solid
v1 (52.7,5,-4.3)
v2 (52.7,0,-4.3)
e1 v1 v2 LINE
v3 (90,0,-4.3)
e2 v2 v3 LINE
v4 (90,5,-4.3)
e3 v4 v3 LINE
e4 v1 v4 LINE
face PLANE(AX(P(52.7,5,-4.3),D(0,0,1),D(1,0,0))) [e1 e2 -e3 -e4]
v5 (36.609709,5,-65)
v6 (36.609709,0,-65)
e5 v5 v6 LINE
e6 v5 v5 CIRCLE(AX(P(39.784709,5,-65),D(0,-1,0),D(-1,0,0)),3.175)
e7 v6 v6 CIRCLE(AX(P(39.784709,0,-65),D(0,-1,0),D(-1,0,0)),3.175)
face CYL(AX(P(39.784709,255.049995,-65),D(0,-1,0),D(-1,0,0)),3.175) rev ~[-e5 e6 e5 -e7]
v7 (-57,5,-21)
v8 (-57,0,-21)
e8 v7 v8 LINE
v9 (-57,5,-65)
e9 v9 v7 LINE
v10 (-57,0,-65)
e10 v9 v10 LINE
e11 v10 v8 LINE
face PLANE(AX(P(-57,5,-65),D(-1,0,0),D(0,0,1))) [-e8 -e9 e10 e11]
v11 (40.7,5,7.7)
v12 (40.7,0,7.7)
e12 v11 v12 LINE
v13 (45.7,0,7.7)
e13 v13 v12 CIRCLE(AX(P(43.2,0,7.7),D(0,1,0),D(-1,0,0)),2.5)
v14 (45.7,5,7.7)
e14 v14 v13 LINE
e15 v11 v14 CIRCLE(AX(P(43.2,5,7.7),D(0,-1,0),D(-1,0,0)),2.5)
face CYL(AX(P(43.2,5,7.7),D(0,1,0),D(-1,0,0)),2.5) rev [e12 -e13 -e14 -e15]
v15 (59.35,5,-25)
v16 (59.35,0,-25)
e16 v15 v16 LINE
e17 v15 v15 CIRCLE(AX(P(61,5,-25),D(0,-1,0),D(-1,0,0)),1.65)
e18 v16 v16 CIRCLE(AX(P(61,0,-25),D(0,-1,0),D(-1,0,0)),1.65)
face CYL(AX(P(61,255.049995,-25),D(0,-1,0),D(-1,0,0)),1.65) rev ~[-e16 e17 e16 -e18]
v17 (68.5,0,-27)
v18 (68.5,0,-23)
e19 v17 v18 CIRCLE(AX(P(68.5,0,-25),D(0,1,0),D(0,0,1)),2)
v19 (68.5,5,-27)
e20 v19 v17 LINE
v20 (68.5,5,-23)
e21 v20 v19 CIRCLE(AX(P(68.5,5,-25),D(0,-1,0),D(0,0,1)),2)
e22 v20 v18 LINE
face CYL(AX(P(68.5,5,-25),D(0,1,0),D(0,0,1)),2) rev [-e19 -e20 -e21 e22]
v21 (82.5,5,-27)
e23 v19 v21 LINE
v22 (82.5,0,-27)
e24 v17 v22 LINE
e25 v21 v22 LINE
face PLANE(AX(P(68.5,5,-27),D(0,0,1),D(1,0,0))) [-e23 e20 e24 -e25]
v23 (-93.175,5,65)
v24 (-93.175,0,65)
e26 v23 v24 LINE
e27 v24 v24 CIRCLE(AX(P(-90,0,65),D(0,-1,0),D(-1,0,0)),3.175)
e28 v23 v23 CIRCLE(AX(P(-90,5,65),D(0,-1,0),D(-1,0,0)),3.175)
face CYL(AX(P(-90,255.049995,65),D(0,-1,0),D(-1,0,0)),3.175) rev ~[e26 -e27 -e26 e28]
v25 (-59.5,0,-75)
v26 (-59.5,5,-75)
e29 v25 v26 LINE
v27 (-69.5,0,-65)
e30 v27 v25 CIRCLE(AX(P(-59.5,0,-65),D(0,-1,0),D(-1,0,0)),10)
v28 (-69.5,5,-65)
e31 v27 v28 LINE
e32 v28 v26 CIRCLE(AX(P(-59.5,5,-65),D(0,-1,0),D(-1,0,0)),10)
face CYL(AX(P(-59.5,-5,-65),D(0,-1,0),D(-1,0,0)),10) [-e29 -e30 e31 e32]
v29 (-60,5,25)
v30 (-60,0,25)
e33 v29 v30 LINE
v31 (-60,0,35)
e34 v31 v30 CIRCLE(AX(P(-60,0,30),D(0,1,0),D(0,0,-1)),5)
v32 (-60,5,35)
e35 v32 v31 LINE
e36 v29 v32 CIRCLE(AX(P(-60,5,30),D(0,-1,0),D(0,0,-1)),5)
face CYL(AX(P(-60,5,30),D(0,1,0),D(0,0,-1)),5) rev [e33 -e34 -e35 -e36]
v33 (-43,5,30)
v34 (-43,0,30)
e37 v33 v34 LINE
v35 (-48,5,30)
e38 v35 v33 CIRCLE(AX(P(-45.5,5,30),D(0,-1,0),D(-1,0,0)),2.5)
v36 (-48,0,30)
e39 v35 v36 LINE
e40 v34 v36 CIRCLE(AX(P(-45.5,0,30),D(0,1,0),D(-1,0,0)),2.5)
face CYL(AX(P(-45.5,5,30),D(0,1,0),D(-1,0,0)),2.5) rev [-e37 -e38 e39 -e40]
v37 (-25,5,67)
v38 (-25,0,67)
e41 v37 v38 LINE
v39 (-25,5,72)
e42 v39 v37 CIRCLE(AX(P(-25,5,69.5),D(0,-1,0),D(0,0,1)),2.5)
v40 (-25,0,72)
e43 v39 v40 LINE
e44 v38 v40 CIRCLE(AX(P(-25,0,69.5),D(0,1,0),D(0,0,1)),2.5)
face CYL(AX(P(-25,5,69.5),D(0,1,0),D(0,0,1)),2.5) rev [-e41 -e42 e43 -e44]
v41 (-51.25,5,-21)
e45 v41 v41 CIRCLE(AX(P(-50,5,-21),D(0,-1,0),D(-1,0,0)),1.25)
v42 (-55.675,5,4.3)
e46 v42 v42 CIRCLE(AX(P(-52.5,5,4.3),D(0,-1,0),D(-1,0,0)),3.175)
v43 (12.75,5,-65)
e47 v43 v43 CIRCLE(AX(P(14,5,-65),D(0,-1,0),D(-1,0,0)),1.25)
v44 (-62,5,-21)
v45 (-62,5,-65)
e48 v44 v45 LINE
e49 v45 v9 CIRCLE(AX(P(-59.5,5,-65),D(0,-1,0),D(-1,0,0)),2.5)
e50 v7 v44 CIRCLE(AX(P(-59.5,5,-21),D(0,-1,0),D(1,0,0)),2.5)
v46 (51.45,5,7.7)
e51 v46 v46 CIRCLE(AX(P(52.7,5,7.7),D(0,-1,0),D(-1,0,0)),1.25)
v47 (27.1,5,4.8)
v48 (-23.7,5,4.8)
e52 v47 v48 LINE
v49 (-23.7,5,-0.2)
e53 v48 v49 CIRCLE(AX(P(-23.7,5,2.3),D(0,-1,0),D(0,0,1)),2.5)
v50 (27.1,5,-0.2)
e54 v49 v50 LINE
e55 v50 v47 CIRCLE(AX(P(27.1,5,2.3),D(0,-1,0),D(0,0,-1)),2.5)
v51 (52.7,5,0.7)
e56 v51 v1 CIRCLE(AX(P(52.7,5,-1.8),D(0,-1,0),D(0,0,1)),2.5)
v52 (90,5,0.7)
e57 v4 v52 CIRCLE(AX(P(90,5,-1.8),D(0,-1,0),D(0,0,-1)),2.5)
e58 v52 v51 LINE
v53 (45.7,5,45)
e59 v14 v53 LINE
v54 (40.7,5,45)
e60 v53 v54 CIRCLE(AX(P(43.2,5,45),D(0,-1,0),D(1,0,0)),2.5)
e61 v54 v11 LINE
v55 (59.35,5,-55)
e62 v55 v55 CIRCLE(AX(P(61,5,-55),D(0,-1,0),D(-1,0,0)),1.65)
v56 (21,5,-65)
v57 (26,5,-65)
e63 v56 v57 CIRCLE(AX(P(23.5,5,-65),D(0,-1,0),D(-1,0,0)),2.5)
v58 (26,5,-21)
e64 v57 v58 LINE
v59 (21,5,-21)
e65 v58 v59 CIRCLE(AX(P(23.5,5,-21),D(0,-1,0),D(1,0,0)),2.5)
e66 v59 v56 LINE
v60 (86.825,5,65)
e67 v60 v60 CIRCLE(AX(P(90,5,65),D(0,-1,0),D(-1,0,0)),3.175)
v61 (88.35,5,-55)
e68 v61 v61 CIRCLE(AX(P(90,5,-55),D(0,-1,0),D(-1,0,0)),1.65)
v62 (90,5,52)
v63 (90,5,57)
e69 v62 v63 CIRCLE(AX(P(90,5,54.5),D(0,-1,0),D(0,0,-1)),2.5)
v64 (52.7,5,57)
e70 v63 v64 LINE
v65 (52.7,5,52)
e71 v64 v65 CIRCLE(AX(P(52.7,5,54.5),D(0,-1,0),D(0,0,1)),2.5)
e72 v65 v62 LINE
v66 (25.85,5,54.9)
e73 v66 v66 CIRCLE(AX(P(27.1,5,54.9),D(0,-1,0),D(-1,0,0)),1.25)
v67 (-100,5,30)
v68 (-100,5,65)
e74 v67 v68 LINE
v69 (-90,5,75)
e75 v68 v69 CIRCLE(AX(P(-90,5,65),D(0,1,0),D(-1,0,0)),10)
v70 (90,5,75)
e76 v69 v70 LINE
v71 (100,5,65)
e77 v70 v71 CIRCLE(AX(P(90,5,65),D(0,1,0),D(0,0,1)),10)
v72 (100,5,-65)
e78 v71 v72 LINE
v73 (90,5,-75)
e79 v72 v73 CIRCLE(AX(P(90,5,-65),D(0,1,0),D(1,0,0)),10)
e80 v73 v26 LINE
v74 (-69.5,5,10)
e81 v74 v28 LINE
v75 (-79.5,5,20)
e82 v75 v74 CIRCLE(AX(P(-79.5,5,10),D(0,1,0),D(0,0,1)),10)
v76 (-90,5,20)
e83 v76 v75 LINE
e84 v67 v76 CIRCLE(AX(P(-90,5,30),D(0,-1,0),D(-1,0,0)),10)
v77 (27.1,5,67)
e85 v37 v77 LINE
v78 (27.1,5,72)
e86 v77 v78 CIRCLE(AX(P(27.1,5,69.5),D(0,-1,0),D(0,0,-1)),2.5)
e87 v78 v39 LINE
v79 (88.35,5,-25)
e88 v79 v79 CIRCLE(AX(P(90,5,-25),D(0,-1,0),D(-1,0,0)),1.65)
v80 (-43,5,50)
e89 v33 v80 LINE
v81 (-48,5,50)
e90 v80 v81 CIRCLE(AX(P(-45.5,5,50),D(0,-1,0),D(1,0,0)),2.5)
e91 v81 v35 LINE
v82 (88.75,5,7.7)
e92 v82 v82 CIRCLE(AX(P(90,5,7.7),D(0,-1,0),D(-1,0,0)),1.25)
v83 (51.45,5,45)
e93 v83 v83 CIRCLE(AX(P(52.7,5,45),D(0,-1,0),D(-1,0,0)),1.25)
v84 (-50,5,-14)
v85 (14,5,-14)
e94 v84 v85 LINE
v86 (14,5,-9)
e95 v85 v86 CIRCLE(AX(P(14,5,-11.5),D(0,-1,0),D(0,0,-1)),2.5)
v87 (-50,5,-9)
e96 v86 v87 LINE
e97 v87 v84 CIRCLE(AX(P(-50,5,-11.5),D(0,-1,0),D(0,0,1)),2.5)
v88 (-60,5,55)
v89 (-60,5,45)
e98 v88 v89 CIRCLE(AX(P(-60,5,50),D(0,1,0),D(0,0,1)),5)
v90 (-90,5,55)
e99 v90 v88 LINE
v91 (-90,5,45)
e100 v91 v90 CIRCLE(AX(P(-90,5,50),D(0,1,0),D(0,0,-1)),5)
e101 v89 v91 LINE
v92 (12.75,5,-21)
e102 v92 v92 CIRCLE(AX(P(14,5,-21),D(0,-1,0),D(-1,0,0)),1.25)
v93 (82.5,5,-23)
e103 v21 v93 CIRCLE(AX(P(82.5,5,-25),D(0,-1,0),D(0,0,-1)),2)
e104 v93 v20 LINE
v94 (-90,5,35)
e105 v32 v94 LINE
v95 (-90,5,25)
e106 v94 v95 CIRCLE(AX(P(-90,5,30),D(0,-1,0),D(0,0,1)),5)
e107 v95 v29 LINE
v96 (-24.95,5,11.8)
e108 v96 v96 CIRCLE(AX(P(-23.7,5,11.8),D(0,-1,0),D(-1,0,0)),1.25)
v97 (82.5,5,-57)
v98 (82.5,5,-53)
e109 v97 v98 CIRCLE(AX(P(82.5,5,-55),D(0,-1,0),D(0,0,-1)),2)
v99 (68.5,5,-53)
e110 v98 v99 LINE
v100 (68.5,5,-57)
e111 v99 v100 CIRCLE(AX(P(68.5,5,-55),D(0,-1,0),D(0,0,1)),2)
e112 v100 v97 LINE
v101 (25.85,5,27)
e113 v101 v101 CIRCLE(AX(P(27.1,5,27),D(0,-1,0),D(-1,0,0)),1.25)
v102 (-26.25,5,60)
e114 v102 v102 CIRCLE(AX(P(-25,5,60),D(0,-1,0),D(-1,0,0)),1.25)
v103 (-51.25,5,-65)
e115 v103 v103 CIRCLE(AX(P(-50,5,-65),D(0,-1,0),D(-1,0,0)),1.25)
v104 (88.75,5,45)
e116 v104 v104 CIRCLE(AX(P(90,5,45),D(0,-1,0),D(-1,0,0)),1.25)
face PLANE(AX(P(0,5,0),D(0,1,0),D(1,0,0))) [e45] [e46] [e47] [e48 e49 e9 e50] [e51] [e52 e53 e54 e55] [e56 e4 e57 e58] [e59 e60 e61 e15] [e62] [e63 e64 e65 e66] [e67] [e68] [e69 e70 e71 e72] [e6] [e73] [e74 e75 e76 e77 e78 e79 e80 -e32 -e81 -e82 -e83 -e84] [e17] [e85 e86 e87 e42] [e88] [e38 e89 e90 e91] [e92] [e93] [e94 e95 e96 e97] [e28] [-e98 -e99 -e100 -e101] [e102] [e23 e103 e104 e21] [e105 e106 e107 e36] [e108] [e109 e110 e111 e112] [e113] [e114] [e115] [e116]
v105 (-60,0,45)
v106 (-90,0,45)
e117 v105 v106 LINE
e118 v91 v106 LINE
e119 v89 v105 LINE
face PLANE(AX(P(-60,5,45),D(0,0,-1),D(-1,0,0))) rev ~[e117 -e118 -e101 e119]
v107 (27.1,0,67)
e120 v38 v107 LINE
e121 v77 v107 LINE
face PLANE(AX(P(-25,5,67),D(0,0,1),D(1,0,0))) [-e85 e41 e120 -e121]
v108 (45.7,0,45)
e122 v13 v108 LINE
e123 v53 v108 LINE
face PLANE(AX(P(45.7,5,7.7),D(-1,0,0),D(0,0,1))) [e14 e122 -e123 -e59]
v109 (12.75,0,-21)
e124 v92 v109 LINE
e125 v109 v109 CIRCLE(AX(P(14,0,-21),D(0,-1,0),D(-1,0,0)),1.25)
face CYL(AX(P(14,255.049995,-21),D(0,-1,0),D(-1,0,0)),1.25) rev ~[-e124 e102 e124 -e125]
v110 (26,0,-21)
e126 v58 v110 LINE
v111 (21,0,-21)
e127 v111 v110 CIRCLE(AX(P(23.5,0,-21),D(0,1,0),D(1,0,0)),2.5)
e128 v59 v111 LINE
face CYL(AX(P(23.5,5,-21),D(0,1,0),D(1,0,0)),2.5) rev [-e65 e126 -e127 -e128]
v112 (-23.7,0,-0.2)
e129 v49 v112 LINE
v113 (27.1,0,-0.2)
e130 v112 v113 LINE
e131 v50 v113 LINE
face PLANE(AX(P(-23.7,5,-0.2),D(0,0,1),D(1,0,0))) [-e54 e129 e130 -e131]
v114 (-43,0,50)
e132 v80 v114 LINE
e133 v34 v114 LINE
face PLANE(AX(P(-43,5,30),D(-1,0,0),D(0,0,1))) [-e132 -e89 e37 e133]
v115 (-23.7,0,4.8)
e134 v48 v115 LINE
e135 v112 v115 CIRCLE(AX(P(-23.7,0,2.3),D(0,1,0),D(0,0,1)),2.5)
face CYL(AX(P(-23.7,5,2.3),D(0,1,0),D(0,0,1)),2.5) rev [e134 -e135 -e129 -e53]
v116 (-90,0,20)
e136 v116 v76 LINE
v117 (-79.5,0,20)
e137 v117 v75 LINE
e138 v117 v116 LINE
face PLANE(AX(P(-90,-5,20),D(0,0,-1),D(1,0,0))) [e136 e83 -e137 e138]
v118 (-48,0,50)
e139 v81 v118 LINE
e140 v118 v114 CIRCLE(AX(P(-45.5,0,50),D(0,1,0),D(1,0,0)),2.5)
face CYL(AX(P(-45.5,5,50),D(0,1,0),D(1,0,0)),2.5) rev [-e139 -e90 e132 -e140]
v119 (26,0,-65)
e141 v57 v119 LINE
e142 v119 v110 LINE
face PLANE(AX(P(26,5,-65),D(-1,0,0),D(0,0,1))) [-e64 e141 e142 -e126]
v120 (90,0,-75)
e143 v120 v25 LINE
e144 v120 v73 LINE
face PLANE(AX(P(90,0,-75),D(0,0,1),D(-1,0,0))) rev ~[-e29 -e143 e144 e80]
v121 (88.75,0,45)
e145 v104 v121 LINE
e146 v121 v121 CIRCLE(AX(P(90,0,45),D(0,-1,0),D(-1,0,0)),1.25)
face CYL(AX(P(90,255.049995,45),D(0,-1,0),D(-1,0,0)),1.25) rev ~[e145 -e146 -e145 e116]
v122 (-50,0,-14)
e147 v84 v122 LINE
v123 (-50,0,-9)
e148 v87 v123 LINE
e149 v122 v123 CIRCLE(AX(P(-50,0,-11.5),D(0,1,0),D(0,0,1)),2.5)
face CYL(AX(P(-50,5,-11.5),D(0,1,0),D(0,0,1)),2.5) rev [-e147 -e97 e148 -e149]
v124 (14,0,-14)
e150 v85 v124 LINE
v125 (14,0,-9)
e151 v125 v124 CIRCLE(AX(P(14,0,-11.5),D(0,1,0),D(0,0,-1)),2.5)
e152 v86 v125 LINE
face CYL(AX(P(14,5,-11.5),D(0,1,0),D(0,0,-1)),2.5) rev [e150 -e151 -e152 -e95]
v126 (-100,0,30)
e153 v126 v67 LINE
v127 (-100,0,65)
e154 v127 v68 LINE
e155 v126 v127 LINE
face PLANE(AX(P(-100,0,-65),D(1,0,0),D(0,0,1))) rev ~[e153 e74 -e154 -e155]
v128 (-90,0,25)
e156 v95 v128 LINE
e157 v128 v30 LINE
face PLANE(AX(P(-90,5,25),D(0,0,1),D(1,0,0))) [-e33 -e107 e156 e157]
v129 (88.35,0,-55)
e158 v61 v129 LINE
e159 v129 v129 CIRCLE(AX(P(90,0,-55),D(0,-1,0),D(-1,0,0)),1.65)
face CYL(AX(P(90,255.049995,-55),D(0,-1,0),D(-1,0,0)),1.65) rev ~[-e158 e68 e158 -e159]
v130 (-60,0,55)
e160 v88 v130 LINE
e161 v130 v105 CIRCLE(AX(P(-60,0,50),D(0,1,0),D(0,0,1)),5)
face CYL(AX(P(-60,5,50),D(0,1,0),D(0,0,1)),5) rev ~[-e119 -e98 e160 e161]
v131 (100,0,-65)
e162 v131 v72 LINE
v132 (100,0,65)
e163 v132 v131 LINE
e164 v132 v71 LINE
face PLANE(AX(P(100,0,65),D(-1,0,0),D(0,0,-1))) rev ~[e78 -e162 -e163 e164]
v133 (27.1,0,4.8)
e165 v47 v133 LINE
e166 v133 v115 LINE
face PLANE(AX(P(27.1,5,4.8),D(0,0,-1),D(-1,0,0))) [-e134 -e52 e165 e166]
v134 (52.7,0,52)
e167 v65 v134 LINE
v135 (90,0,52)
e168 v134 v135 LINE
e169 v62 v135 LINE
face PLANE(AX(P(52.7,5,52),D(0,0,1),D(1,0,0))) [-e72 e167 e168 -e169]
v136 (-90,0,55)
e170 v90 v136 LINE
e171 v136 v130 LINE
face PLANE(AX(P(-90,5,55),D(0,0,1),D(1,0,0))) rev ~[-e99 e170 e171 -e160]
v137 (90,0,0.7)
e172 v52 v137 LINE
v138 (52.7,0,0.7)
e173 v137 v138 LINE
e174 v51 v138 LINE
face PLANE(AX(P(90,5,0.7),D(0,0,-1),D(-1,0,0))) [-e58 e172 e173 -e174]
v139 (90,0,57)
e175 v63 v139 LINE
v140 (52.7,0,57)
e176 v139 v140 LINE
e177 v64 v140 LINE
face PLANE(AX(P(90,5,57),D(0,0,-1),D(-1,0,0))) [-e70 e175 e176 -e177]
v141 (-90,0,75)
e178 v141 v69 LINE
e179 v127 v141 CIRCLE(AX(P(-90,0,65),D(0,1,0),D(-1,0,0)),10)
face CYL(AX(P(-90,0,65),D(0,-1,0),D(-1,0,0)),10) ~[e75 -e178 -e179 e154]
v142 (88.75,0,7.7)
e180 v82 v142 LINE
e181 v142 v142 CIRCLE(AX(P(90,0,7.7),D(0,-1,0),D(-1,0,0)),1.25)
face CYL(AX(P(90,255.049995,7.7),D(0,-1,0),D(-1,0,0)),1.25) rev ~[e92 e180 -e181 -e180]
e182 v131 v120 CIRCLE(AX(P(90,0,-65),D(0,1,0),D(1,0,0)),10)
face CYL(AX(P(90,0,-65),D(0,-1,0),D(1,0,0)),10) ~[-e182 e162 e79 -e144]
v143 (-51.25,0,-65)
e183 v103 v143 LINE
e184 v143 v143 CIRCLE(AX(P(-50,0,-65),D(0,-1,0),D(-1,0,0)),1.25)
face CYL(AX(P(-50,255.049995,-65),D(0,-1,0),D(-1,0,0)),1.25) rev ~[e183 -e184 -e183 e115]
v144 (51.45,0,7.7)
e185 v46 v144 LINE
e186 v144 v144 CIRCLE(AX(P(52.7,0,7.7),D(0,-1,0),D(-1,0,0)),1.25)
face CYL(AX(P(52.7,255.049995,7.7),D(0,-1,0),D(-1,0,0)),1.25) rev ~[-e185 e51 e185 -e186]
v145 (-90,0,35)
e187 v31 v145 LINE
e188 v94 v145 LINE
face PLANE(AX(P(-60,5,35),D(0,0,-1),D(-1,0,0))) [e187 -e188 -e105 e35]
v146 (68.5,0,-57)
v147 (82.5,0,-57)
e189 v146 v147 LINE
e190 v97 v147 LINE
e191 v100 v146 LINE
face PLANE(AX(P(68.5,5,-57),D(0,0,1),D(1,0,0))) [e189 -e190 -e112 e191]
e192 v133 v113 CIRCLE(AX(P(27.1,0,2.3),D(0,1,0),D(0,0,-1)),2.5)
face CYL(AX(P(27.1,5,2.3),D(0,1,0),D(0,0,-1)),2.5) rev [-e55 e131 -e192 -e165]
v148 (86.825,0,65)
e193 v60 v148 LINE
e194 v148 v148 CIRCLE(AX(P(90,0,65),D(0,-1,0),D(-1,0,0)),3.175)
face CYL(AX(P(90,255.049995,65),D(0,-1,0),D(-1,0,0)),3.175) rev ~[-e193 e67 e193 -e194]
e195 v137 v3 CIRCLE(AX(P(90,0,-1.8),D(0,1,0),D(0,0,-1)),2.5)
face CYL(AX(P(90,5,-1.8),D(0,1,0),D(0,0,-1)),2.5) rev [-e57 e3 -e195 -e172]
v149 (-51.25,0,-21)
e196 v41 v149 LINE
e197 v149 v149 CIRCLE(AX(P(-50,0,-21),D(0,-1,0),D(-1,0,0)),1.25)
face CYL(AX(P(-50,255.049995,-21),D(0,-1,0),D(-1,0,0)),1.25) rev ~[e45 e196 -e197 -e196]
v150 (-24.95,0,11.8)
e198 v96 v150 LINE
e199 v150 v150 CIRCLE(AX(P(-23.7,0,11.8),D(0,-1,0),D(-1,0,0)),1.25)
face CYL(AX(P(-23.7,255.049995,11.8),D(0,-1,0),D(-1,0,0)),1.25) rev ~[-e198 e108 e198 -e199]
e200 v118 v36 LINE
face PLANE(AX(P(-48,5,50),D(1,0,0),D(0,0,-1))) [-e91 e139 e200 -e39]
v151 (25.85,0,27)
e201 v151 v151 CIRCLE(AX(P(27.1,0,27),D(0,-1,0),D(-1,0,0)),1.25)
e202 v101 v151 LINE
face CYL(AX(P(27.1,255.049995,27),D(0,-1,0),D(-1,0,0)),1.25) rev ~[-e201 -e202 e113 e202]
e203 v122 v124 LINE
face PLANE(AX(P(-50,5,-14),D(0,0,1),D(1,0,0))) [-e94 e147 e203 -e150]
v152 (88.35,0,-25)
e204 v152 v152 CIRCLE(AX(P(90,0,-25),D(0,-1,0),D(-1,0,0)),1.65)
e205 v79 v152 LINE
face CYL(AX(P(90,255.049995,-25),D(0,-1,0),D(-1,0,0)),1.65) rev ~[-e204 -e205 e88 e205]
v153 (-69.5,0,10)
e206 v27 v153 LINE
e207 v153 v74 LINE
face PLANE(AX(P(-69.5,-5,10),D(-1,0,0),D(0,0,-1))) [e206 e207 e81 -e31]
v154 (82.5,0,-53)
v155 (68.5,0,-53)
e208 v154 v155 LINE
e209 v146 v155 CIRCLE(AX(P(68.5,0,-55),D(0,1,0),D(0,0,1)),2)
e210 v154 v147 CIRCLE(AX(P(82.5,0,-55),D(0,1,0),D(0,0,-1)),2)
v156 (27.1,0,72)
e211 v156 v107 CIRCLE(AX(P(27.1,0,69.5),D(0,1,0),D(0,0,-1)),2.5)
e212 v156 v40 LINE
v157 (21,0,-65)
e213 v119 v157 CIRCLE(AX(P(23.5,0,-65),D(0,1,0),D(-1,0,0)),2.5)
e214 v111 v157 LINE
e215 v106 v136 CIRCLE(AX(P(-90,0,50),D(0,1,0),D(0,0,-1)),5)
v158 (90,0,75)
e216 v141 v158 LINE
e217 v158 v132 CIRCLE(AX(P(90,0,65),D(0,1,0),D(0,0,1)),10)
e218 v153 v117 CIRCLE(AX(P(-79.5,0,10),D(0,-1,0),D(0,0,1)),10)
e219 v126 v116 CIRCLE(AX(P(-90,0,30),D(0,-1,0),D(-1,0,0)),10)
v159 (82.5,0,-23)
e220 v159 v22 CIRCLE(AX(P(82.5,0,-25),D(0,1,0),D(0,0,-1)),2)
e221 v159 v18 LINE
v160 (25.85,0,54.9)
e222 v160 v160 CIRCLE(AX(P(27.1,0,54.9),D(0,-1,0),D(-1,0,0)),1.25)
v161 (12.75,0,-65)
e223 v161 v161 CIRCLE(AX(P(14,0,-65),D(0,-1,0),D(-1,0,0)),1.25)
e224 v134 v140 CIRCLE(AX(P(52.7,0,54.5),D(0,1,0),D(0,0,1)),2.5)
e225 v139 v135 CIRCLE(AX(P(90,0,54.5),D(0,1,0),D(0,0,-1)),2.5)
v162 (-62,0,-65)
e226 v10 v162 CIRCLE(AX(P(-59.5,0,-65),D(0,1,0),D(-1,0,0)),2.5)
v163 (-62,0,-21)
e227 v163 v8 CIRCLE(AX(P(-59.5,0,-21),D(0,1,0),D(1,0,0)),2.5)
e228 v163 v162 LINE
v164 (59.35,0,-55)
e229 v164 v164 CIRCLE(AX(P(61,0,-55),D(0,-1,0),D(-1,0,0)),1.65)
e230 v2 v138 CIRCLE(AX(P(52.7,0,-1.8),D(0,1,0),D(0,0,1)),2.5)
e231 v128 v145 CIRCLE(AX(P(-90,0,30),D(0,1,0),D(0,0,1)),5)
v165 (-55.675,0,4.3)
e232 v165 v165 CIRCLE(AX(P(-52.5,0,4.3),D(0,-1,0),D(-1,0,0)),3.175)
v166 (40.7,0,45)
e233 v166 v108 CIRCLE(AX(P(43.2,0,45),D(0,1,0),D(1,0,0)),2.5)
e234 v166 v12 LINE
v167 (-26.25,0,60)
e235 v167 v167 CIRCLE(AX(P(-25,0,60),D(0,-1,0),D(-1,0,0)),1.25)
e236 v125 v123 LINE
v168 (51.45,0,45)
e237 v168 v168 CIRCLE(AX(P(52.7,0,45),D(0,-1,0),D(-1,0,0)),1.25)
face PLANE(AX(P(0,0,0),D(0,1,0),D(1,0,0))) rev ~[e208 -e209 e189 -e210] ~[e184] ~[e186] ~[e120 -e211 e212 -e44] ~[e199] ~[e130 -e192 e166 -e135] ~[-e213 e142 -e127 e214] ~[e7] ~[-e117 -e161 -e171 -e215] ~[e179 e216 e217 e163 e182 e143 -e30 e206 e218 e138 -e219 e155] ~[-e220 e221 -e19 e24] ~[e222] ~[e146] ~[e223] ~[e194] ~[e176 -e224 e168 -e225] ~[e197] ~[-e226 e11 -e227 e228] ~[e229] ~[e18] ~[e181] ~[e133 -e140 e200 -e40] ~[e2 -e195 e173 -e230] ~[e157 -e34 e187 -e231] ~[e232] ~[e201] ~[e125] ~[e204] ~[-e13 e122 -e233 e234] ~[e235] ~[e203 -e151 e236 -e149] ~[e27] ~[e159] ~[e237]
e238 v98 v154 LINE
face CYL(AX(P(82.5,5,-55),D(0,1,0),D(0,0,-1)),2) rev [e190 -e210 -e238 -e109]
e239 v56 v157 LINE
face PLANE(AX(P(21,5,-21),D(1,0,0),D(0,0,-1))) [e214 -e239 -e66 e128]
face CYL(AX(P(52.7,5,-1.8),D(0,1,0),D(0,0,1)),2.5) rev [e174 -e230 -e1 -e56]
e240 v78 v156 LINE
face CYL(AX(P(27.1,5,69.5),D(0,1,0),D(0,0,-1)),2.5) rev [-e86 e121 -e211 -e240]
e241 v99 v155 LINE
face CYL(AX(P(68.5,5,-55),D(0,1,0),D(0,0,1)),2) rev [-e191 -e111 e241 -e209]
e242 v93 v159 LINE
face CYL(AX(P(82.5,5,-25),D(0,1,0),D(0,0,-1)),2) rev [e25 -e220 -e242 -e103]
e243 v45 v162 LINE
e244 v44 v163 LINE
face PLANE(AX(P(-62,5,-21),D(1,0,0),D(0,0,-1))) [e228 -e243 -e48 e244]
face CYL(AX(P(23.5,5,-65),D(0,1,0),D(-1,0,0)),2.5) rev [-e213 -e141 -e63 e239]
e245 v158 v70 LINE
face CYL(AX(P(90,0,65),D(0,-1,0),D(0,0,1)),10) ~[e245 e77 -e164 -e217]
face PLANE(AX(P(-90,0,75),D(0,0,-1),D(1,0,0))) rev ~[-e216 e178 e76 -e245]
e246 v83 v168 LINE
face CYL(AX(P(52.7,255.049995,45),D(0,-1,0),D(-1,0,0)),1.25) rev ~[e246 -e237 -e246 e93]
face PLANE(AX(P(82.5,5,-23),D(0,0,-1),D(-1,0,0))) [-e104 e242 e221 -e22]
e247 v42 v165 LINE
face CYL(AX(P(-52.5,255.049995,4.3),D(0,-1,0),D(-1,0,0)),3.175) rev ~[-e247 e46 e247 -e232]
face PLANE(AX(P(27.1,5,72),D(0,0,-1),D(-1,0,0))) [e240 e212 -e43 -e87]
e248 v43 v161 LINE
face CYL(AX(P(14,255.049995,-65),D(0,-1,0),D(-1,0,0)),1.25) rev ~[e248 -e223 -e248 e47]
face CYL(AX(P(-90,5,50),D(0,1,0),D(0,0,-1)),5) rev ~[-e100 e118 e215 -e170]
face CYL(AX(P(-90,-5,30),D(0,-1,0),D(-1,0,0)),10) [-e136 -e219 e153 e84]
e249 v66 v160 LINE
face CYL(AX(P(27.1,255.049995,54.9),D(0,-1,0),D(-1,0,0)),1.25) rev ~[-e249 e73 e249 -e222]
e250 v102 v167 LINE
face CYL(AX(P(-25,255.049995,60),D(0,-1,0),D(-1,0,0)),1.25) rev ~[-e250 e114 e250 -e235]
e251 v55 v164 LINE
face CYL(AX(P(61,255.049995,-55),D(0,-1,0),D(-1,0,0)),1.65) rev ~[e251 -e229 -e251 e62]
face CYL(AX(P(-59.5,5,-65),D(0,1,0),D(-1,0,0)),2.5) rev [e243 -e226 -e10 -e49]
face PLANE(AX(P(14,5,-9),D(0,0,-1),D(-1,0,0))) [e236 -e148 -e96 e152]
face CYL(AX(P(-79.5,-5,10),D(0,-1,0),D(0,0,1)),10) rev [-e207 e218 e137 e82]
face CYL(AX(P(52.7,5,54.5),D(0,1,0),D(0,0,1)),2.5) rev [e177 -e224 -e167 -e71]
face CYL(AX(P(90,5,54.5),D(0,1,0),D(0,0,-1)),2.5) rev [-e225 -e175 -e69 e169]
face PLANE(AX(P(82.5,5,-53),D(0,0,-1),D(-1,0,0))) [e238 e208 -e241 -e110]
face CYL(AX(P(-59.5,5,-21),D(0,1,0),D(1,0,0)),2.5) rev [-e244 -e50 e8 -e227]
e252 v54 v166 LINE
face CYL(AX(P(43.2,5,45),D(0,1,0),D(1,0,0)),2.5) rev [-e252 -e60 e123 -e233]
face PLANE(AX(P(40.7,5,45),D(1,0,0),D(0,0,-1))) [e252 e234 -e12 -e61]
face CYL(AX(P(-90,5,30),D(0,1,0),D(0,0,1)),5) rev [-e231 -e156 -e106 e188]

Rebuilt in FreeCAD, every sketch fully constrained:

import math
import FreeCAD as App
import Part
import Sketcher

V = App.Vector

doc = App.newDocument("Part")
body = doc.addObject("PartDesign::Body", "Body")

sketch1 = body.newObject("Sketcher::SketchObject", "Sketch")
sketch1.AttachmentSupport = (doc.getObject("XZ_Plane"), [""])
sketch1.MapMode = "FlatFace"
sketch1.addGeometry([
    Part.LineSegment(V(-90, 75, 0), V(90, 75, 0)),
    Part.ArcOfCircle(Part.Circle(V(90, 65, 0), V(0, 0, 1), 10), math.radians(0), math.radians(90)),
    Part.LineSegment(V(100, 65, 0), V(100, -65, 0)),
    Part.ArcOfCircle(Part.Circle(V(90, -65, 0), V(0, 0, 1), 10), math.radians(-90), math.radians(0)),
    Part.LineSegment(V(90, -75, 0), V(-90, -75, 0)),
    Part.ArcOfCircle(Part.Circle(V(-90, -65, 0), V(0, 0, 1), 10), math.radians(180), math.radians(270)),
    Part.LineSegment(V(-100, -65, 0), V(-100, 65, 0)),
    Part.ArcOfCircle(Part.Circle(V(-90, 65, 0), V(0, 0, 1), 10), math.radians(90), math.radians(180)),
], False)
sketch1.addConstraint([
    Sketcher.Constraint("Tangent", 0, 2, 1, 2),
    Sketcher.Constraint("Tangent", 1, 1, 2, 1),
    Sketcher.Constraint("Tangent", 2, 2, 3, 2),
    Sketcher.Constraint("Tangent", 3, 1, 4, 1),
    Sketcher.Constraint("Tangent", 4, 2, 5, 2),
    Sketcher.Constraint("Tangent", 5, 1, 6, 1),
    Sketcher.Constraint("Tangent", 6, 2, 7, 2),
    Sketcher.Constraint("Tangent", 7, 1, 0, 1),
    Sketcher.Constraint("Horizontal", 0),
    Sketcher.Constraint("Vertical", 2),
    Sketcher.Constraint("Horizontal", 4),
    Sketcher.Constraint("Vertical", 6),
    Sketcher.Constraint("Equal", 1, 3),
    Sketcher.Constraint("Equal", 3, 5),
    Sketcher.Constraint("Equal", 5, 7),
    Sketcher.Constraint("Symmetric", 1, 3, 5, 3, -1, 1),
    Sketcher.Constraint("Radius", 1, 10.0),
    Sketcher.Constraint("DistanceX", 0, 1, 0, 2, 180.0),
    Sketcher.Constraint("DistanceY", 2, 2, 2, 1, 130.0),
])
pad1 = body.newObject("PartDesign::Pad", "Pad")
pad1.Profile = sketch1
pad1.Length = 5
pad1.Reversed = True

sketch2 = body.newObject("Sketcher::SketchObject", "Sketch001")
sketch2.AttachmentSupport = (doc.getObject("XZ_Plane"), [""])
sketch2.MapMode = "FlatFace"
sketch2.AttachmentOffset = App.Placement(V(0, 0, -5), App.Rotation())
sketch2.addGeometry([
    Part.Circle(V(27.1, 27, 0), V(0, 0, 1), 1.2),
    Part.Circle(V(27.1, 54.9, 0), V(0, 0, 1), 1.2),
    Part.Circle(V(-23.7, 11.8, 0), V(0, 0, 1), 1.2),
    Part.Circle(V(-25, 60, 0), V(0, 0, 1), 1.2),
], False)
sketch2.addConstraint([
    Sketcher.Constraint("Equal", 0, 1),
    Sketcher.Constraint("Equal", 1, 2),
    Sketcher.Constraint("Equal", 2, 3),
    Sketcher.Constraint("Vertical", 0, 3, 1, 3),
    Sketcher.Constraint("Diameter", 0, 2.5),
    Sketcher.Constraint("DistanceY", -1, 1, 0, 3, 27.0),
    Sketcher.Constraint("DistanceX", 3, 3, -1, 1, 25.0),
    Sketcher.Constraint("DistanceY", -1, 1, 3, 3, 60.0),
    Sketcher.Constraint("DistanceX", -1, 1, 0, 3, 27.1),
    Sketcher.Constraint("DistanceY", -1, 1, 1, 3, 54.9),
    Sketcher.Constraint("DistanceX", 2, 3, -1, 1, 23.7),
    Sketcher.Constraint("DistanceY", -1, 1, 2, 3, 11.8),
])
doc.recompute()
hole = body.newObject("PartDesign::Hole", "Hole")
hole.Profile = sketch2
hole.ThreadType = "None"
hole.Diameter = 2.5
hole.DepthType = "ThroughAll"
hole.Reversed = True

sketch3 = body.newObject("Sketcher::SketchObject", "Sketch002")
sketch3.AttachmentSupport = (doc.getObject("XZ_Plane"), [""])
sketch3.MapMode = "FlatFace"
sketch3.AttachmentOffset = App.Placement(V(0, 0, -5), App.Rotation())
sketch3.addGeometry([
    Part.Circle(V(52.7, 45, 0), V(0, 0, 1), 1.2),
    Part.Circle(V(90, 45, 0), V(0, 0, 1), 1.2),
    Part.Circle(V(90, 7.7, 0), V(0, 0, 1), 1.2),
    Part.Circle(V(52.7, 7.7, 0), V(0, 0, 1), 1.2),
], False)
sketch3.addConstraint([
    Sketcher.Constraint("Equal", 0, 1),
    Sketcher.Constraint("Equal", 1, 2),
    Sketcher.Constraint("Equal", 2, 3),
    Sketcher.Constraint("Horizontal", 0, 3, 1, 3),
    Sketcher.Constraint("Horizontal", 2, 3, 3, 3),
    Sketcher.Constraint("Vertical", 1, 3, 2, 3),
    Sketcher.Constraint("Vertical", 0, 3, 3, 3),
    Sketcher.Constraint("Diameter", 0, 2.5),
    Sketcher.Constraint("DistanceY", -1, 1, 0, 3, 45.0),
    Sketcher.Constraint("DistanceX", -1, 1, 1, 3, 90.0),
    Sketcher.Constraint("DistanceX", -1, 1, 0, 3, 52.7),
    Sketcher.Constraint("DistanceY", -1, 1, 2, 3, 7.7),
])
doc.recompute()
hole2 = body.newObject("PartDesign::Hole", "Hole001")
hole2.Profile = sketch3
hole2.ThreadType = "None"
hole2.Diameter = 2.5
hole2.DepthType = "ThroughAll"
hole2.Reversed = True

sketch4 = body.newObject("Sketcher::SketchObject", "Sketch003")
sketch4.AttachmentSupport = (doc.getObject("XZ_Plane"), [""])
sketch4.MapMode = "FlatFace"
sketch4.AttachmentOffset = App.Placement(V(0, 0, -5), App.Rotation())
sketch4.addGeometry([
    Part.Circle(V(-50, -21, 0), V(0, 0, 1), 1.2),
    Part.Circle(V(14, -21, 0), V(0, 0, 1), 1.2),
    Part.Circle(V(14, -65, 0), V(0, 0, 1), 1.2),
    Part.Circle(V(-50, -65, 0), V(0, 0, 1), 1.2),
], False)
sketch4.addConstraint([
    Sketcher.Constraint("Equal", 0, 1),
    Sketcher.Constraint("Equal", 1, 2),
    Sketcher.Constraint("Equal", 2, 3),
    Sketcher.Constraint("Horizontal", 0, 3, 1, 3),
    Sketcher.Constraint("Horizontal", 2, 3, 3, 3),
    Sketcher.Constraint("Vertical", 1, 3, 2, 3),
    Sketcher.Constraint("Vertical", 0, 3, 3, 3),
    Sketcher.Constraint("Diameter", 0, 2.5),
    Sketcher.Constraint("DistanceX", 0, 3, -1, 1, 50.0),
    Sketcher.Constraint("DistanceY", 0, 3, -1, 1, 21.0),
    Sketcher.Constraint("DistanceX", -1, 1, 1, 3, 14.0),
    Sketcher.Constraint("DistanceY", 2, 3, -1, 1, 65.0),
])
doc.recompute()
hole3 = body.newObject("PartDesign::Hole", "Hole002")
hole3.Profile = sketch4
hole3.ThreadType = "None"
hole3.Diameter = 2.5
hole3.DepthType = "ThroughAll"
hole3.Reversed = True

sketch5 = body.newObject("Sketcher::SketchObject", "Sketch004")
sketch5.AttachmentSupport = (doc.getObject("XZ_Plane"), [""])
sketch5.MapMode = "FlatFace"
sketch5.AttachmentOffset = App.Placement(V(0, 0, -5), App.Rotation())
sketch5.addGeometry([
    Part.Circle(V(61, -55, 0), V(0, 0, 1), 1.6),
    Part.Circle(V(90, -55, 0), V(0, 0, 1), 1.6),
    Part.Circle(V(90, -25, 0), V(0, 0, 1), 1.6),
    Part.Circle(V(61, -25, 0), V(0, 0, 1), 1.6),
], False)
sketch5.addConstraint([
    Sketcher.Constraint("Equal", 0, 1),
    Sketcher.Constraint("Equal", 1, 2),
    Sketcher.Constraint("Equal", 2, 3),
    Sketcher.Constraint("Horizontal", 0, 3, 1, 3),
    Sketcher.Constraint("Horizontal", 2, 3, 3, 3),
    Sketcher.Constraint("Vertical", 1, 3, 2, 3),
    Sketcher.Constraint("Vertical", 0, 3, 3, 3),
    Sketcher.Constraint("Diameter", 0, 3.3),
    Sketcher.Constraint("DistanceX", -1, 1, 0, 3, 61.0),
    Sketcher.Constraint("DistanceY", 0, 3, -1, 1, 55.0),
    Sketcher.Constraint("DistanceX", -1, 1, 1, 3, 90.0),
    Sketcher.Constraint("DistanceY", 2, 3, -1, 1, 25.0),
])
doc.recompute()
hole4 = body.newObject("PartDesign::Hole", "Hole003")
hole4.Profile = sketch5
hole4.ThreadType = "None"
hole4.Diameter = 3.3
hole4.DepthType = "ThroughAll"
hole4.Reversed = True

sketch6 = body.newObject("Sketcher::SketchObject", "Sketch005")
sketch6.AttachmentSupport = (doc.getObject("XZ_Plane"), [""])
sketch6.MapMode = "FlatFace"
sketch6.AttachmentOffset = App.Placement(V(0, 0, -5), App.Rotation())
sketch6.addGeometry([
    Part.LineSegment(V(-90, 35, 0), V(-60, 35, 0)),
    Part.ArcOfCircle(Part.Circle(V(-60, 30, 0), V(0, 0, 1), 5), math.radians(-90), math.radians(90)),
    Part.LineSegment(V(-60, 25, 0), V(-90, 25, 0)),
    Part.ArcOfCircle(Part.Circle(V(-90, 30, 0), V(0, 0, 1), 5), math.radians(90), math.radians(270)),
    Part.LineSegment(V(-60, 45, 0), V(-90, 45, 0)),
    Part.ArcOfCircle(Part.Circle(V(-90, 50, 0), V(0, 0, 1), 5), math.radians(90), math.radians(270)),
    Part.LineSegment(V(-90, 55, 0), V(-60, 55, 0)),
    Part.ArcOfCircle(Part.Circle(V(-60, 50, 0), V(0, 0, 1), 5), math.radians(-90), math.radians(90)),
], False)
sketch6.addConstraint([
    Sketcher.Constraint("Tangent", 0, 2, 1, 2),
    Sketcher.Constraint("Tangent", 1, 1, 2, 1),
    Sketcher.Constraint("Tangent", 2, 2, 3, 2),
    Sketcher.Constraint("Tangent", 3, 1, 0, 1),
    Sketcher.Constraint("Tangent", 4, 2, 5, 2),
    Sketcher.Constraint("Tangent", 5, 1, 6, 1),
    Sketcher.Constraint("Tangent", 6, 2, 7, 2),
    Sketcher.Constraint("Tangent", 7, 1, 4, 1),
    Sketcher.Constraint("Horizontal", 0),
    Sketcher.Constraint("Horizontal", 2),
    Sketcher.Constraint("Horizontal", 4),
    Sketcher.Constraint("Horizontal", 6),
    Sketcher.Constraint("Equal", 3, 5),
    Sketcher.Constraint("Vertical", 3, 3, 5, 3),
    Sketcher.Constraint("Vertical", 1, 3, 7, 3),
    Sketcher.Constraint("Radius", 1, 5.0),
    Sketcher.Constraint("DistanceX", 0, 1, 0, 2, 30.0),
    Sketcher.Constraint("DistanceX", 1, 3, -1, 1, 60.0),
    Sketcher.Constraint("DistanceY", -1, 1, 1, 3, 30.0),
    Sketcher.Constraint("DistanceY", -1, 1, 5, 3, 50.0),
])
pocket1 = body.newObject("PartDesign::Pocket", "Pocket")
pocket1.Profile = sketch6
pocket1.Type = "ThroughAll"
pocket1.Reversed = True

sketch7 = body.newObject("Sketcher::SketchObject", "Sketch006")
sketch7.AttachmentSupport = (doc.getObject("XZ_Plane"), [""])
sketch7.MapMode = "FlatFace"
sketch7.AttachmentOffset = App.Placement(V(0, 0, -5), App.Rotation())
sketch7.addGeometry([
    Part.LineSegment(V(14, -14, 0), V(-50, -14, 0)),
    Part.ArcOfCircle(Part.Circle(V(-50, -11.5, 0), V(0, 0, 1), 2.5), math.radians(90), math.radians(270)),
    Part.LineSegment(V(-50, -9, 0), V(14, -9, 0)),
    Part.ArcOfCircle(Part.Circle(V(14, -11.5, 0), V(0, 0, 1), 2.5), math.radians(-90), math.radians(90)),
    Part.LineSegment(V(26, -21, 0), V(26, -65, 0)),
    Part.ArcOfCircle(Part.Circle(V(23.5, -65, 0), V(0, 0, 1), 2.5), math.radians(180), math.radians(360)),
    Part.LineSegment(V(21, -65, 0), V(21, -21, 0)),
    Part.ArcOfCircle(Part.Circle(V(23.5, -21, 0), V(0, 0, 1), 2.5), math.radians(0), math.radians(180)),
    Part.LineSegment(V(82.5, -57, 0), V(68.5, -57, 0)),
    Part.ArcOfCircle(Part.Circle(V(68.5, -55, 0), V(0, 0, 1), 2), math.radians(90), math.radians(270)),
    Part.LineSegment(V(68.5, -53, 0), V(82.5, -53, 0)),
    Part.ArcOfCircle(Part.Circle(V(82.5, -55, 0), V(0, 0, 1), 2), math.radians(-90), math.radians(90)),
    Part.LineSegment(V(82.5, -27, 0), V(68.5, -27, 0)),
    Part.ArcOfCircle(Part.Circle(V(68.5, -25, 0), V(0, 0, 1), 2), math.radians(90), math.radians(270)),
    Part.LineSegment(V(68.5, -23, 0), V(82.5, -23, 0)),
    Part.ArcOfCircle(Part.Circle(V(82.5, -25, 0), V(0, 0, 1), 2), math.radians(-90), math.radians(90)),
    Part.LineSegment(V(90, -4.3, 0), V(52.7, -4.3, 0)),
    Part.ArcOfCircle(Part.Circle(V(52.7, -1.8, 0), V(0, 0, 1), 2.5), math.radians(90), math.radians(270)),
    Part.LineSegment(V(52.7, 0.7, 0), V(90, 0.7, 0)),
    Part.ArcOfCircle(Part.Circle(V(90, -1.8, 0), V(0, 0, 1), 2.5), math.radians(-90), math.radians(90)),
    Part.LineSegment(V(45.7, 45, 0), V(45.7, 7.7, 0)),
    Part.ArcOfCircle(Part.Circle(V(43.2, 7.7, 0), V(0, 0, 1), 2.5), math.radians(180), math.radians(360)),
    Part.LineSegment(V(40.7, 7.7, 0), V(40.7, 45, 0)),
    Part.ArcOfCircle(Part.Circle(V(43.2, 45, 0), V(0, 0, 1), 2.5), math.radians(0), math.radians(180)),
    Part.LineSegment(V(27.1, 67, 0), V(-25, 67, 0)),
    Part.ArcOfCircle(Part.Circle(V(-25, 69.5, 0), V(0, 0, 1), 2.5), math.radians(90), math.radians(270)),
    Part.LineSegment(V(-25, 72, 0), V(27.1, 72, 0)),
    Part.ArcOfCircle(Part.Circle(V(27.1, 69.5, 0), V(0, 0, 1), 2.5), math.radians(-90), math.radians(90)),
    Part.LineSegment(V(-43, 50, 0), V(-43, 30, 0)),
    Part.ArcOfCircle(Part.Circle(V(-45.5, 30, 0), V(0, 0, 1), 2.5), math.radians(180), math.radians(360)),
    Part.LineSegment(V(-48, 30, 0), V(-48, 50, 0)),
    Part.ArcOfCircle(Part.Circle(V(-45.5, 50, 0), V(0, 0, 1), 2.5), math.radians(0), math.radians(180)),
    Part.LineSegment(V(27.1, -0.2, 0), V(-23.7, -0.2, 0)),
    Part.ArcOfCircle(Part.Circle(V(-23.7, 2.3, 0), V(0, 0, 1), 2.5), math.radians(90), math.radians(270)),
    Part.LineSegment(V(-23.7, 4.8, 0), V(27.1, 4.8, 0)),
    Part.ArcOfCircle(Part.Circle(V(27.1, 2.3, 0), V(0, 0, 1), 2.5), math.radians(-90), math.radians(90)),
    Part.LineSegment(V(-57, -21, 0), V(-57, -65, 0)),
    Part.ArcOfCircle(Part.Circle(V(-59.5, -65, 0), V(0, 0, 1), 2.5), math.radians(180), math.radians(360)),
    Part.LineSegment(V(-62, -65, 0), V(-62, -21, 0)),
    Part.ArcOfCircle(Part.Circle(V(-59.5, -21, 0), V(0, 0, 1), 2.5), math.radians(0), math.radians(180)),
    Part.LineSegment(V(52.7, 57, 0), V(90, 57, 0)),
    Part.ArcOfCircle(Part.Circle(V(90, 54.5, 0), V(0, 0, 1), 2.5), math.radians(-90), math.radians(90)),
    Part.LineSegment(V(90, 52, 0), V(52.7, 52, 0)),
    Part.ArcOfCircle(Part.Circle(V(52.7, 54.5, 0), V(0, 0, 1), 2.5), math.radians(90), math.radians(270)),
], False)
sketch7.addConstraint([
    Sketcher.Constraint("Tangent", 0, 2, 1, 2),
    Sketcher.Constraint("Tangent", 1, 1, 2, 1),
    Sketcher.Constraint("Tangent", 2, 2, 3, 2),
    Sketcher.Constraint("Tangent", 3, 1, 0, 1),
    Sketcher.Constraint("Tangent", 4, 2, 5, 2),
    Sketcher.Constraint("Tangent", 5, 1, 6, 1),
    Sketcher.Constraint("Tangent", 6, 2, 7, 2),
    Sketcher.Constraint("Tangent", 7, 1, 4, 1),
    Sketcher.Constraint("Tangent", 8, 2, 9, 2),
    Sketcher.Constraint("Tangent", 9, 1, 10, 1),
    Sketcher.Constraint("Tangent", 10, 2, 11, 2),
    Sketcher.Constraint("Tangent", 11, 1, 8, 1),
    Sketcher.Constraint("Tangent", 12, 2, 13, 2),
    Sketcher.Constraint("Tangent", 13, 1, 14, 1),
    Sketcher.Constraint("Tangent", 14, 2, 15, 2),
    Sketcher.Constraint("Tangent", 15, 1, 12, 1),
    Sketcher.Constraint("Tangent", 16, 2, 17, 2),
    Sketcher.Constraint("Tangent", 17, 1, 18, 1),
    Sketcher.Constraint("Tangent", 18, 2, 19, 2),
    Sketcher.Constraint("Tangent", 19, 1, 16, 1),
    Sketcher.Constraint("Tangent", 20, 2, 21, 2),
    Sketcher.Constraint("Tangent", 21, 1, 22, 1),
    Sketcher.Constraint("Tangent", 22, 2, 23, 2),
    Sketcher.Constraint("Tangent", 23, 1, 20, 1),
    Sketcher.Constraint("Tangent", 24, 2, 25, 2),
    Sketcher.Constraint("Tangent", 25, 1, 26, 1),
    Sketcher.Constraint("Tangent", 26, 2, 27, 2),
    Sketcher.Constraint("Tangent", 27, 1, 24, 1),
    Sketcher.Constraint("Tangent", 28, 2, 29, 2),
    Sketcher.Constraint("Tangent", 29, 1, 30, 1),
    Sketcher.Constraint("Tangent", 30, 2, 31, 2),
    Sketcher.Constraint("Tangent", 31, 1, 28, 1),
    Sketcher.Constraint("Tangent", 32, 2, 33, 2),
    Sketcher.Constraint("Tangent", 33, 1, 34, 1),
    Sketcher.Constraint("Tangent", 34, 2, 35, 2),
    Sketcher.Constraint("Tangent", 35, 1, 32, 1),
    Sketcher.Constraint("Tangent", 36, 2, 37, 2),
    Sketcher.Constraint("Tangent", 37, 1, 38, 1),
    Sketcher.Constraint("Tangent", 38, 2, 39, 2),
    Sketcher.Constraint("Tangent", 39, 1, 36, 1),
    Sketcher.Constraint("Tangent", 40, 2, 41, 2),
    Sketcher.Constraint("Tangent", 41, 1, 42, 1),
    Sketcher.Constraint("Tangent", 42, 2, 43, 2),
    Sketcher.Constraint("Tangent", 43, 1, 40, 1),
    Sketcher.Constraint("Horizontal", 0),
    Sketcher.Constraint("Horizontal", 2),
    Sketcher.Constraint("Vertical", 4),
    Sketcher.Constraint("Vertical", 6),
    Sketcher.Constraint("Horizontal", 8),
    Sketcher.Constraint("Horizontal", 10),
    Sketcher.Constraint("Horizontal", 12),
    Sketcher.Constraint("Horizontal", 14),
    Sketcher.Constraint("Horizontal", 16),
    Sketcher.Constraint("Horizontal", 18),
    Sketcher.Constraint("Vertical", 20),
    Sketcher.Constraint("Vertical", 22),
    Sketcher.Constraint("Horizontal", 24),
    Sketcher.Constraint("Horizontal", 26),
    Sketcher.Constraint("Vertical", 28),
    Sketcher.Constraint("Vertical", 30),
    Sketcher.Constraint("Horizontal", 32),
    Sketcher.Constraint("Horizontal", 34),
    Sketcher.Constraint("Vertical", 36),
    Sketcher.Constraint("Vertical", 38),
    Sketcher.Constraint("Horizontal", 40),
    Sketcher.Constraint("Horizontal", 42),
    Sketcher.Constraint("Equal", 3, 5),
    Sketcher.Constraint("Equal", 11, 13),
    Sketcher.Constraint("Equal", 7, 17),
    Sketcher.Constraint("Equal", 19, 21),
    Sketcher.Constraint("Equal", 23, 25),
    Sketcher.Constraint("Equal", 27, 29),
    Sketcher.Constraint("Equal", 31, 33),
    Sketcher.Constraint("Equal", 35, 37),
    Sketcher.Constraint("Equal", 39, 41),
    Sketcher.Constraint("Horizontal", 5, 3, 37, 3),
    Sketcher.Constraint("Horizontal", 7, 3, 39, 3),
    Sketcher.Constraint("Vertical", 9, 3, 13, 3),
    Sketcher.Constraint("Vertical", 11, 3, 15, 3),
    Sketcher.Constraint("Vertical", 27, 3, 35, 3),
    Sketcher.Constraint("Vertical", 19, 3, 41, 3),
    Sketcher.Constraint("Vertical", 17, 3, 43, 3),
    Sketcher.Constraint("Equal", 42, 20),
    Sketcher.Constraint("Radius", 9, 2.0),
    Sketcher.Constraint("Radius", 1, 2.5),
    Sketcher.Constraint("DistanceX", 0, 2, 0, 1, 64.0),
    Sketcher.Constraint("DistanceX", 8, 2, 8, 1, 14.0),
    Sketcher.Constraint("DistanceY", 4, 2, 4, 1, 44.0),
    Sketcher.Constraint("DistanceY", 28, 2, 28, 1, 20.0),
    Sketcher.Constraint("DistanceX", 16, 2, 16, 1, 37.3),
    Sketcher.Constraint("DistanceX", 24, 2, 24, 1, 52.1),
    Sketcher.Constraint("DistanceX", 32, 2, 32, 1, 50.8),
    Sketcher.Constraint("DistanceX", 1, 3, -1, 1, 50.0),
    Sketcher.Constraint("DistanceY", 5, 3, -1, 1, 65.0),
    Sketcher.Constraint("DistanceY", 9, 3, -1, 1, 55.0),
    Sketcher.Constraint("DistanceY", 13, 3, -1, 1, 25.0),
    Sketcher.Constraint("DistanceX", -1, 1, 19, 3, 90.0),
    Sketcher.Constraint("DistanceY", -1, 1, 23, 3, 45.0),
    Sketcher.Constraint("DistanceX", 25, 3, -1, 1, 25.0),
    Sketcher.Constraint("DistanceY", -1, 1, 29, 3, 30.0),
    Sketcher.Constraint("DistanceY", 0, 2, -1, 1, 14.0),
    Sketcher.Constraint("DistanceX", -1, 1, 4, 2, 26.0),
    Sketcher.Constraint("DistanceY", -1, 1, 24, 2, 67.0),
    Sketcher.Constraint("DistanceX", 28, 2, -1, 1, 43.0),
    Sketcher.Constraint("DistanceX", 36, 2, -1, 1, 57.0),
    Sketcher.Constraint("DistanceY", -1, 1, 40, 2, 57.0),
    Sketcher.Constraint("DistanceX", -1, 1, 9, 3, 68.5),
    Sketcher.Constraint("DistanceY", 17, 3, -1, 1, 1.8),
    Sketcher.Constraint("DistanceX", -1, 1, 21, 3, 43.2),
    Sketcher.Constraint("DistanceY", -1, 1, 33, 3, 2.3),
])
pocket2 = body.newObject("PartDesign::Pocket", "Pocket001")
pocket2.Profile = sketch7
pocket2.Type = "ThroughAll"
pocket2.Reversed = True

sketch8 = body.newObject("Sketcher::SketchObject", "Sketch007")
sketch8.AttachmentSupport = (doc.getObject("XZ_Plane"), [""])
sketch8.MapMode = "FlatFace"
sketch8.AttachmentOffset = App.Placement(V(0, 0, 5), App.Rotation())
sketch8.addGeometry([
    Part.LineSegment(V(-70, 10, 0), V(-70, -65, 0)),
    Part.ArcOfCircle(Part.Circle(V(-60, -65, 0), V(0, 0, 1), 10), math.radians(180), math.radians(270)),
    Part.LineSegment(V(-60, -75, 0), V(-90, -75, 0)),
    Part.ArcOfCircle(Part.Circle(V(-90, -65, 0), V(0, 0, 1), 10), math.radians(180), math.radians(270)),
    Part.LineSegment(V(-100, -65, 0), V(-100, 30, 0)),
    Part.ArcOfCircle(Part.Circle(V(-90, 30, 0), V(0, 0, 1), 10), math.radians(180), math.radians(270)),
    Part.LineSegment(V(-90, 20, 0), V(-80, 20, 0)),
    Part.ArcOfCircle(Part.Circle(V(-80, 10, 0), V(0, 0, 1), 10), math.radians(0), math.radians(90)),
], False)
sketch8.addConstraint([
    Sketcher.Constraint("Tangent", 0, 2, 1, 1),
    Sketcher.Constraint("Tangent", 1, 2, 2, 1),
    Sketcher.Constraint("Tangent", 2, 2, 3, 2),
    Sketcher.Constraint("Tangent", 3, 1, 4, 1),
    Sketcher.Constraint("Tangent", 4, 2, 5, 1),
    Sketcher.Constraint("Tangent", 5, 2, 6, 1),
    Sketcher.Constraint("Tangent", 6, 2, 7, 2),
    Sketcher.Constraint("Tangent", 7, 1, 0, 1),
    Sketcher.Constraint("Vertical", 0),
    Sketcher.Constraint("Horizontal", 2),
    Sketcher.Constraint("Vertical", 4),
    Sketcher.Constraint("Horizontal", 6),
    Sketcher.Constraint("Equal", 1, 3),
    Sketcher.Constraint("Equal", 3, 5),
    Sketcher.Constraint("Equal", 5, 7),
    Sketcher.Constraint("Radius", 1, 10.0),
    Sketcher.Constraint("DistanceY", 0, 2, 0, 1, 75.0),
    Sketcher.Constraint("DistanceX", 2, 2, 2, 1, 30.5),
    Sketcher.Constraint("DistanceY", 1, 3, -1, 1, 65.0),
    Sketcher.Constraint("DistanceX", 3, 3, -1, 1, 90.0),
])
pocket3 = body.newObject("PartDesign::Pocket", "Pocket002")
pocket3.Profile = sketch8
pocket3.Length = 10

sketch9 = body.newObject("Sketcher::SketchObject", "Sketch008")
sketch9.AttachmentSupport = (doc.getObject("XZ_Plane"), [""])
sketch9.MapMode = "FlatFace"
sketch9.AttachmentOffset = App.Placement(V(0, 0, -5), App.Rotation())
sketch9.addGeometry([
    Part.Circle(V(-90, 65, 0), V(0, 0, 1), 3.2),
    Part.Circle(V(90, 65, 0), V(0, 0, 1), 3.2),
    Part.Circle(V(39.8, -65, 0), V(0, 0, 1), 3.2),
    Part.Circle(V(-52.5, 4.3, 0), V(0, 0, 1), 3.2),
], False)
sketch9.addConstraint([
    Sketcher.Constraint("Equal", 0, 1),
    Sketcher.Constraint("Equal", 1, 2),
    Sketcher.Constraint("Equal", 2, 3),
    Sketcher.Constraint("Symmetric", 0, 3, 1, 3, -2),
    Sketcher.Constraint("Diameter", 0, 6.35),
    Sketcher.Constraint("DistanceX", 0, 3, -1, 1, 90.0),
    Sketcher.Constraint("DistanceY", -1, 1, 0, 3, 65.0),
    Sketcher.Constraint("DistanceY", 2, 3, -1, 1, 65.0),
    Sketcher.Constraint("DistanceX", 3, 3, -1, 1, 52.5),
    Sketcher.Constraint("DistanceY", -1, 1, 3, 3, 4.3),
    Sketcher.Constraint("DistanceX", -1, 1, 2, 3, 39.784709),
])
doc.recompute()
hole5 = body.newObject("PartDesign::Hole", "Hole004")
hole5.Profile = sketch9
hole5.ThreadType = "None"
hole5.Diameter = 6.35
hole5.DepthType = "ThroughAll"
hole5.Reversed = True

doc.recompute()
